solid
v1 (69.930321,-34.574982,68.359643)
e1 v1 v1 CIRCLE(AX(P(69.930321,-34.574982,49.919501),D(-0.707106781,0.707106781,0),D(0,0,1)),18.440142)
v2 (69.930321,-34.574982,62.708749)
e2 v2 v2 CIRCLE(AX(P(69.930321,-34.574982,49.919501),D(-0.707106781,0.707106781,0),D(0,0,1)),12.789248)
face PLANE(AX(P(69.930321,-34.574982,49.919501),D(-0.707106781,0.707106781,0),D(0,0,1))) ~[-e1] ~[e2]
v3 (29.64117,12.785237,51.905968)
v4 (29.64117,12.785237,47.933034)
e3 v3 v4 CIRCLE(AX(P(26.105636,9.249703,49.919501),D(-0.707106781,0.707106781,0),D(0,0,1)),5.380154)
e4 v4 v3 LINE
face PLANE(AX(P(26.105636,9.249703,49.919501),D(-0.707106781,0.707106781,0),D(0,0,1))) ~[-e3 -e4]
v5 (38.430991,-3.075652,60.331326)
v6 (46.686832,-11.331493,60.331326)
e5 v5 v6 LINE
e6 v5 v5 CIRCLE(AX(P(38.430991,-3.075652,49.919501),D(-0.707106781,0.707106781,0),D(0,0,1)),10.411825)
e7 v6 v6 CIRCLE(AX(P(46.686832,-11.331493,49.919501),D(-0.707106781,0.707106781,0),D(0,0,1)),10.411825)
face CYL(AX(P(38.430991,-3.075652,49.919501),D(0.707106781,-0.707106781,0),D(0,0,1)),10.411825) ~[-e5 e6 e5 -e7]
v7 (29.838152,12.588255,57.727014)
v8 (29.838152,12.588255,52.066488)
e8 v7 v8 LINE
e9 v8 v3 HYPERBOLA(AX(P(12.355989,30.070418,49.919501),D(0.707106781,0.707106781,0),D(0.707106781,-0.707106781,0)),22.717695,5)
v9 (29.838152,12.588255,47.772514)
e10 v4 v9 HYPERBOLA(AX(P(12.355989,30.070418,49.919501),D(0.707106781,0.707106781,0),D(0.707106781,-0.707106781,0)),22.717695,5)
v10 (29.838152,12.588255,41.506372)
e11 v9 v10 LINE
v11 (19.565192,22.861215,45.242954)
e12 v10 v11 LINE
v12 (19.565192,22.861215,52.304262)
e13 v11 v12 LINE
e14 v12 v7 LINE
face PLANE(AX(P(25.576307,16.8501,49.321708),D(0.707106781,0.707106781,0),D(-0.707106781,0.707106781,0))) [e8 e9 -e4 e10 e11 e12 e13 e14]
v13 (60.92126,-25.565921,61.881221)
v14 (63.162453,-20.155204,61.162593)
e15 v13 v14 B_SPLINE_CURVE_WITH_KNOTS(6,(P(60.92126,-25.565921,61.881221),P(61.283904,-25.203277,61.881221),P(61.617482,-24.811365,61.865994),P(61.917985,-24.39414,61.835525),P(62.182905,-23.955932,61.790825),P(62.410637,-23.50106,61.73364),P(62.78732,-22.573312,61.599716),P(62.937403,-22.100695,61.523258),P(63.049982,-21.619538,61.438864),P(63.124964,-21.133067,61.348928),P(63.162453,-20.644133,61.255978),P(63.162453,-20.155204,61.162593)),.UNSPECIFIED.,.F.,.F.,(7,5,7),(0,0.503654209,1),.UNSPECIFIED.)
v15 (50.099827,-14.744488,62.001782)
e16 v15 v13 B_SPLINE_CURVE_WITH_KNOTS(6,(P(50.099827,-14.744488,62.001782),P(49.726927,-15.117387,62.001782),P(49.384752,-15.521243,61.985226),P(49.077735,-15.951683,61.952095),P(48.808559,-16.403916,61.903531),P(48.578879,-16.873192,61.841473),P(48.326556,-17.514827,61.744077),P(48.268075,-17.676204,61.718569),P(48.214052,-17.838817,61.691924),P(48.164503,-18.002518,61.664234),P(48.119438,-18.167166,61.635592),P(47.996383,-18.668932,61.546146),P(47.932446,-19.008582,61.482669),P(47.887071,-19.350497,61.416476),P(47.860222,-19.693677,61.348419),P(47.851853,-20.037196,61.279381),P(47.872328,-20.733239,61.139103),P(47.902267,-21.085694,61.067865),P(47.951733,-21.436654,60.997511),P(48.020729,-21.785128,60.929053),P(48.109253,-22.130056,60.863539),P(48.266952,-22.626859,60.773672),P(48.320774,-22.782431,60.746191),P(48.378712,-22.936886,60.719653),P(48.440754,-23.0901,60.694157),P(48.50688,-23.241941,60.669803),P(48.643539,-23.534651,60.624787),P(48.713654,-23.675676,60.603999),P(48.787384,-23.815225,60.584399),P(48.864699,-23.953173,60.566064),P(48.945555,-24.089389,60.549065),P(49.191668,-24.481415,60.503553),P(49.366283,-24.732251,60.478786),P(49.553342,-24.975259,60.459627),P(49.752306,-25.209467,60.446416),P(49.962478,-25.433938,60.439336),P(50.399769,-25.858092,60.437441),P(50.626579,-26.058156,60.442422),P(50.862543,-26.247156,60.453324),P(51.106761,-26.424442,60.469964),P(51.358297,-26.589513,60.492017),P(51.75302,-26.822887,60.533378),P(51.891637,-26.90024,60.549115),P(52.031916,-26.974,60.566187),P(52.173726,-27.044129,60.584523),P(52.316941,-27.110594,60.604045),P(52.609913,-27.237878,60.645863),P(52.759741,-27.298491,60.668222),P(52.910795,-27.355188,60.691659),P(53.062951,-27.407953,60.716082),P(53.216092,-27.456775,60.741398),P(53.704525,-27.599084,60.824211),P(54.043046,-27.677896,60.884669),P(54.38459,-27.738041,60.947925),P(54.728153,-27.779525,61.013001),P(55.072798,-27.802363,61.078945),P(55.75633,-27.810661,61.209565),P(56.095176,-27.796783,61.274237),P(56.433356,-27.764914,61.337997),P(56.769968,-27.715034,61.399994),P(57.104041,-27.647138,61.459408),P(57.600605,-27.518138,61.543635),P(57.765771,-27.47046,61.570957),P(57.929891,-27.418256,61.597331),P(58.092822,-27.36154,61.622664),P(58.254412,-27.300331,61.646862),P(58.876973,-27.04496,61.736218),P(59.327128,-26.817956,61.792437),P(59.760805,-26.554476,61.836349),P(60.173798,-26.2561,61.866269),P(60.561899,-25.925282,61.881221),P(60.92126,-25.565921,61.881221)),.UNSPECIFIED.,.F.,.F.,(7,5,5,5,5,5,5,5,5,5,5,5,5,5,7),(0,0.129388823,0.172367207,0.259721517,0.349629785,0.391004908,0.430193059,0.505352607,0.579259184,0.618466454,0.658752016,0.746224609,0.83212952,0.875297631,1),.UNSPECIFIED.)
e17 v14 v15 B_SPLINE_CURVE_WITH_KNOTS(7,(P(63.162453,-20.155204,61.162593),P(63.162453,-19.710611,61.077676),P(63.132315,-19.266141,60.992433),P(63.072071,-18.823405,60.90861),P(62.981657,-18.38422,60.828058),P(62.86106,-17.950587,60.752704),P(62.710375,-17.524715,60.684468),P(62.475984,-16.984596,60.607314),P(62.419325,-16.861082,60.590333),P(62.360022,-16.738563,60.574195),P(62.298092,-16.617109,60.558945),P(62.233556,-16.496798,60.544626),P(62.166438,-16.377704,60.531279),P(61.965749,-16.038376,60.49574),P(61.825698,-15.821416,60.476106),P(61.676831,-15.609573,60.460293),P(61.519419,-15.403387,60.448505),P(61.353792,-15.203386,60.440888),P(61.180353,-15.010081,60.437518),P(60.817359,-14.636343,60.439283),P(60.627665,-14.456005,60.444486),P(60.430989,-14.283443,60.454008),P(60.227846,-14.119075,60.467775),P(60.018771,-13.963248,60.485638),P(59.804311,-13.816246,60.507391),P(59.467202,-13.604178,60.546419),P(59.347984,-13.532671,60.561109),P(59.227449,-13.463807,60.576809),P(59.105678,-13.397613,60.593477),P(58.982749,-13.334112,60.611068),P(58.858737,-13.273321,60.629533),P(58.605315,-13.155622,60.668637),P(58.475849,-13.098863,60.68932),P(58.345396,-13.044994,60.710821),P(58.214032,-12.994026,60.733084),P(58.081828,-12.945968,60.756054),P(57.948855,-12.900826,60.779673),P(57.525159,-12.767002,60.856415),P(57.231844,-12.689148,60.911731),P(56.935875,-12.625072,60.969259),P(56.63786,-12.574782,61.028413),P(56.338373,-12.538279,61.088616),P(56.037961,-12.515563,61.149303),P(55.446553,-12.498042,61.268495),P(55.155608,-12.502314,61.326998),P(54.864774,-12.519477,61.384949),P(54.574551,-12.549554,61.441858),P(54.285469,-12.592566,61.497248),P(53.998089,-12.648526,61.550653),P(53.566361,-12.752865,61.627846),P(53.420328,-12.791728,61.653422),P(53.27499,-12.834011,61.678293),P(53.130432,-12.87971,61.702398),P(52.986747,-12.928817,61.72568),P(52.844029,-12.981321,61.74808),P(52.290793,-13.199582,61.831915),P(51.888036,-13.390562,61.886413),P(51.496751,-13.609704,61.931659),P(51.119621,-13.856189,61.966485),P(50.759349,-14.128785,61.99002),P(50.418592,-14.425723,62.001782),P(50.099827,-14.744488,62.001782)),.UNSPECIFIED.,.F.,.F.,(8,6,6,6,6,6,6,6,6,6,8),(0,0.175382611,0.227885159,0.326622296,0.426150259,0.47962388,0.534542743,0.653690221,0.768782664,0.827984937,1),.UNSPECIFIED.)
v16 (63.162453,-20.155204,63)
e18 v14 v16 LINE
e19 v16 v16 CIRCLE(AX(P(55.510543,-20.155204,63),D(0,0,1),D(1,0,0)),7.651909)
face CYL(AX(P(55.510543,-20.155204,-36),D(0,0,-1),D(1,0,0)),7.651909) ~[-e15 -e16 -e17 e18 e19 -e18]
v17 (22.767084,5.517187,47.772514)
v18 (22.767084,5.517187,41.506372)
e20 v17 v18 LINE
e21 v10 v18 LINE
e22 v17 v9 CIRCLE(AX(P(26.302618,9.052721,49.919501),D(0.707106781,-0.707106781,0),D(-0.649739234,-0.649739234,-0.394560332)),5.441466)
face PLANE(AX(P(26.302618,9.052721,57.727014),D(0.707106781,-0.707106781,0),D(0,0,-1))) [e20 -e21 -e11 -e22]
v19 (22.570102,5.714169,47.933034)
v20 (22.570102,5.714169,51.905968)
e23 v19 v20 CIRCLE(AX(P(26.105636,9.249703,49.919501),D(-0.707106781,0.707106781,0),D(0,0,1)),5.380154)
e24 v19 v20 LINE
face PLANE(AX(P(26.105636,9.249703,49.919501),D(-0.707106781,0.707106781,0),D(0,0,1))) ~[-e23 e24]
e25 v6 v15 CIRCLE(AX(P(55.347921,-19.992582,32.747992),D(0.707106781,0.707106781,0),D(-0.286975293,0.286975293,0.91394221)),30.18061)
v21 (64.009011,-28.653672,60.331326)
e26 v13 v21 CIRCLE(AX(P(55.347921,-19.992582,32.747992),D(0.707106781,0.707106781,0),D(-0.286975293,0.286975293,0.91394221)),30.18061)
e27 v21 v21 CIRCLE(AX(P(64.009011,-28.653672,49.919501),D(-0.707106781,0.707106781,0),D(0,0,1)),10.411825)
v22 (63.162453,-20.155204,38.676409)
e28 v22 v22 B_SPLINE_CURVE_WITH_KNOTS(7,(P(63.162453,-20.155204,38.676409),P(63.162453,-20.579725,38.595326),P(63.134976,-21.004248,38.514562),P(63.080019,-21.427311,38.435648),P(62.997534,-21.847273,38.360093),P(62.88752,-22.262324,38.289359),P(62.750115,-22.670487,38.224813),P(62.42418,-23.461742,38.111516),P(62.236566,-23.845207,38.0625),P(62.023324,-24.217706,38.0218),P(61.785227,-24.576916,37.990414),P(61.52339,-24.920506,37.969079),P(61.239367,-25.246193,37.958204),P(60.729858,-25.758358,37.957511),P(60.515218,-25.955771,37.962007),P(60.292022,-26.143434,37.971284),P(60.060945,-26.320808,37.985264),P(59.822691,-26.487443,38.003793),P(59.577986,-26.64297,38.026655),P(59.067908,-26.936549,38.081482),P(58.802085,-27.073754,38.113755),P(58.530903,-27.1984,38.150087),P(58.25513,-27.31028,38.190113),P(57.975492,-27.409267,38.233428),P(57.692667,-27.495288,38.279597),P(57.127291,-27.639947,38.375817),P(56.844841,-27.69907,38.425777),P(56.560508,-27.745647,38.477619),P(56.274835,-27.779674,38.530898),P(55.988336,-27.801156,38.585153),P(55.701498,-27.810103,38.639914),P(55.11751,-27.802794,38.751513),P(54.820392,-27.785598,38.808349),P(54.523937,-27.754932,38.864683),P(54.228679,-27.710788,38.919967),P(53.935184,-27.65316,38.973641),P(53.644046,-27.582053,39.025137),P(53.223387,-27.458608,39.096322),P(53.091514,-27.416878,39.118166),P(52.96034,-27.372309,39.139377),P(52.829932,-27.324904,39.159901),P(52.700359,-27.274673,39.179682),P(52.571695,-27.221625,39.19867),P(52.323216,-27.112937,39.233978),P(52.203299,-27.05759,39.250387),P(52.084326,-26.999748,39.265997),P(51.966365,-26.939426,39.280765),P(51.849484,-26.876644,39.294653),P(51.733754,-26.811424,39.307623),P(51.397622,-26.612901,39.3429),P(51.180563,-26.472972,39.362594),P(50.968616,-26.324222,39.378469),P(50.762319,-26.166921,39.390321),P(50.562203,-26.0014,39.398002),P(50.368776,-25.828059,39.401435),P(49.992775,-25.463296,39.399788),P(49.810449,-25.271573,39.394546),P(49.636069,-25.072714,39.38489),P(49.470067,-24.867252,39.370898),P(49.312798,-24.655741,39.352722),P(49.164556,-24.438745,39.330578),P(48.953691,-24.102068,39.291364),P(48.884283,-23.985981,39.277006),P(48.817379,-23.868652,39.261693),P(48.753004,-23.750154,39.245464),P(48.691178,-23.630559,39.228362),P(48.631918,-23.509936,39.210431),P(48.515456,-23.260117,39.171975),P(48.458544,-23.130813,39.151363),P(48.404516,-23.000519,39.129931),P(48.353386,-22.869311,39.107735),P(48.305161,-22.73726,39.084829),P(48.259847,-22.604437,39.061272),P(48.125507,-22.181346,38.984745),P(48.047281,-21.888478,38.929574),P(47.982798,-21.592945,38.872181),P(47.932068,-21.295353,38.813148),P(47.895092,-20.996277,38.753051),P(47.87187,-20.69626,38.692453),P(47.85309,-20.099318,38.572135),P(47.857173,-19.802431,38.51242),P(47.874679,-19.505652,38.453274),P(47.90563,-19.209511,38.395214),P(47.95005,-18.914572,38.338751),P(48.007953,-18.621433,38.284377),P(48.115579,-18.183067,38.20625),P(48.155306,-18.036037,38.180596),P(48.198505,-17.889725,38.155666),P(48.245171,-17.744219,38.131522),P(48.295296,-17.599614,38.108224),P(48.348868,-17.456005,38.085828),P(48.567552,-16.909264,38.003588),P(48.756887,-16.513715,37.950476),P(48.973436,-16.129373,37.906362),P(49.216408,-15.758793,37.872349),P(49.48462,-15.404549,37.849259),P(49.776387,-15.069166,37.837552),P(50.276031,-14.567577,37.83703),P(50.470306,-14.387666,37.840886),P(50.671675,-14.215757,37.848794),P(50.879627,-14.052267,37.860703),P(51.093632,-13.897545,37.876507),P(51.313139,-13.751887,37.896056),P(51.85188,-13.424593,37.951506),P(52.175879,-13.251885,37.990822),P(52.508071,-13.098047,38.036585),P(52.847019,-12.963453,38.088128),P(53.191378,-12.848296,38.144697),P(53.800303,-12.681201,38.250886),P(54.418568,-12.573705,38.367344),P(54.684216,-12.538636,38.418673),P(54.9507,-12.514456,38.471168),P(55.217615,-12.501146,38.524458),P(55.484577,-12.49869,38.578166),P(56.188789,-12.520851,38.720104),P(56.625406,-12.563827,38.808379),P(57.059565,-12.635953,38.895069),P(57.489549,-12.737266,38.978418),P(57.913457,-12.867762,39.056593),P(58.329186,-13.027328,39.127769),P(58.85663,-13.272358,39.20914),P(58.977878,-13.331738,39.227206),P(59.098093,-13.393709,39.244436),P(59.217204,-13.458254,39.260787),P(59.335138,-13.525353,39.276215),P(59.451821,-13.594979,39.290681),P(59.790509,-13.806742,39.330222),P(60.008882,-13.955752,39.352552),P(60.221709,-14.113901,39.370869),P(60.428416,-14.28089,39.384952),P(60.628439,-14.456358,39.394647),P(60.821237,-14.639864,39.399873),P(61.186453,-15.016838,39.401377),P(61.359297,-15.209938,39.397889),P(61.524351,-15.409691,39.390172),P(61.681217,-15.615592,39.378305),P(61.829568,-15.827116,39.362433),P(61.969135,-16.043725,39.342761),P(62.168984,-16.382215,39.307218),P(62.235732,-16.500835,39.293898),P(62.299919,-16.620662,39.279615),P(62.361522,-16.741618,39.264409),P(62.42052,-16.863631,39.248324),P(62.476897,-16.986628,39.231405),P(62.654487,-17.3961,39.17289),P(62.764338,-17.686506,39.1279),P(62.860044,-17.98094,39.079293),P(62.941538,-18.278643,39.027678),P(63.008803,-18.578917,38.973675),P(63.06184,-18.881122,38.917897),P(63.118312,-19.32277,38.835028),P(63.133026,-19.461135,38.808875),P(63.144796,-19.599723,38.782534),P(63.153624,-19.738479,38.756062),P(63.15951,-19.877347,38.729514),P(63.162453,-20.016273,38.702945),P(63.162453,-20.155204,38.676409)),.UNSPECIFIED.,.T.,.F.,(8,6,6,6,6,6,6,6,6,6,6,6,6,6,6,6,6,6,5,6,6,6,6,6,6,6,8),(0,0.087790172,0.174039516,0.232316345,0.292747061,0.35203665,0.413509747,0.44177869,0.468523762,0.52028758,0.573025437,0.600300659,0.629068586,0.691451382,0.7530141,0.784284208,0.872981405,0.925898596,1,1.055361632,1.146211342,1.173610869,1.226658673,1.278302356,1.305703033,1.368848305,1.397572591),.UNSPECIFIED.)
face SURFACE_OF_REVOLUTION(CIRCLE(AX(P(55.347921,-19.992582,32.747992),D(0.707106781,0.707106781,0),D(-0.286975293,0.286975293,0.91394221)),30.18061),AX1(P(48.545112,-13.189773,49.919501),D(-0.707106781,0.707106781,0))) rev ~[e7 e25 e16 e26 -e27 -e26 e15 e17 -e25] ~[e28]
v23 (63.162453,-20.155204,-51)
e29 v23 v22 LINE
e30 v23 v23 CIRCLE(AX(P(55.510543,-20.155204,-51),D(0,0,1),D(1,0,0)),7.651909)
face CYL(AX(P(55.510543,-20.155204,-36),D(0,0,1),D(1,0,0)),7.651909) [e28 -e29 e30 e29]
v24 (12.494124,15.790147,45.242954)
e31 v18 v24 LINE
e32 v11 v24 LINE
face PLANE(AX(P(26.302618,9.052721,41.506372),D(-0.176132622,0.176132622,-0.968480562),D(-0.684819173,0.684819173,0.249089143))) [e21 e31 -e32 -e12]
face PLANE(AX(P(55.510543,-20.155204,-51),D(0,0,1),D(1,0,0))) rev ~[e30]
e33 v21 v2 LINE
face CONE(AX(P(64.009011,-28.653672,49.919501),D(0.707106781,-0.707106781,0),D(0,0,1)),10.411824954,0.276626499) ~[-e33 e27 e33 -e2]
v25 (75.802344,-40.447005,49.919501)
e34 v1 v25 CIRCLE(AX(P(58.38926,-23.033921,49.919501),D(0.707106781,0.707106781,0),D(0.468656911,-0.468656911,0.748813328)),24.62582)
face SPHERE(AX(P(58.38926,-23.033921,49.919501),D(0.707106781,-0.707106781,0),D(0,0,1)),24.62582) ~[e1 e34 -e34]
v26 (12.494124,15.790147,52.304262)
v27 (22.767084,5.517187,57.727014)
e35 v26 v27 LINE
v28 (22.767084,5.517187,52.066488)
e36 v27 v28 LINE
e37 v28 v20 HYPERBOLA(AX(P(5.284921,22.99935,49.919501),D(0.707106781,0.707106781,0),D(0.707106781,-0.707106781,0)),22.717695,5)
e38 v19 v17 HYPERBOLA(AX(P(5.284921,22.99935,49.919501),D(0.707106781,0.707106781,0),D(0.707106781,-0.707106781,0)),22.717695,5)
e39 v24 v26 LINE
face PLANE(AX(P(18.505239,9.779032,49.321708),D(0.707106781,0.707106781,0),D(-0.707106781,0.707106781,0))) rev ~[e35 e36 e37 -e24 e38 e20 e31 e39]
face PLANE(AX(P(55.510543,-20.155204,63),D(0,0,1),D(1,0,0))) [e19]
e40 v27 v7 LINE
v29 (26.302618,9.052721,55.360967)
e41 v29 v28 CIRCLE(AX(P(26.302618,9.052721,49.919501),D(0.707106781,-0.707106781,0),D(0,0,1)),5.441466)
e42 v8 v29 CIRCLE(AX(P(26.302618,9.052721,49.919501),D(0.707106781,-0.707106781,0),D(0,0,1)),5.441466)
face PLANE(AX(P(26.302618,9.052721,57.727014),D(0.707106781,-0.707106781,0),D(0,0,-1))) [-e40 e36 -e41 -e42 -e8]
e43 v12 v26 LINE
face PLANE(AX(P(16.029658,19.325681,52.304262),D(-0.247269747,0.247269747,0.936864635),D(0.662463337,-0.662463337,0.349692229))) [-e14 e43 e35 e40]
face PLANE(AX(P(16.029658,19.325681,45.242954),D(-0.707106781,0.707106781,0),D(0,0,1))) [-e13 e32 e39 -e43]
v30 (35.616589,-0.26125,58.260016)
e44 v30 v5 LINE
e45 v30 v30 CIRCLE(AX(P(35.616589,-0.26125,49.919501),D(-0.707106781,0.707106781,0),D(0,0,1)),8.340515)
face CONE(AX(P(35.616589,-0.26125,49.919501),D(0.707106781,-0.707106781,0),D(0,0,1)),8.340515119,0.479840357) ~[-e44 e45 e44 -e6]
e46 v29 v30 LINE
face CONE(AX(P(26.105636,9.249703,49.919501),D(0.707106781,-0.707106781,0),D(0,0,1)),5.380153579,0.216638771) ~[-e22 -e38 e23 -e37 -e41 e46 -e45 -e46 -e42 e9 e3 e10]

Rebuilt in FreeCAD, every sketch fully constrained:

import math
import FreeCAD as App
import Part
import Sketcher
Q = App.Units.Quantity

doc = App.newDocument("Part")
body = doc.addObject("PartDesign::Body", "Body")

# Sketch on an angled plane
sketch1 = body.newObject("Sketcher::SketchObject", "Sketch")
sketch1.Placement = App.Placement(App.Vector(17.67767, 17.67767, 0), App.Rotation(App.Vector(-0.707106781, 0.707106781, 0), App.Vector(0, 0, 0.999999999), App.Vector(0.707106781, 0.707106781, 0), "ZXY"))
sketch1.addGeometry([
    Part.LineSegment(App.Vector(-82.200703, 49.919501, 0), App.Vector(-11.918945, 49.919501, 0)),  # 0
    Part.LineSegment(App.Vector(-11.918945, 49.919501, 0), App.Vector(-11.918945, 55.299654, 0)),  # 1
    Part.LineSegment(App.Vector(-11.918945, 55.299654, 0), App.Vector(-25.369463, 58.260016, 0)),  # 2
    Part.LineSegment(App.Vector(-25.369463, 58.260016, 0), App.Vector(-29.349628, 60.331326, 0)),  # 3
    Part.LineSegment(App.Vector(-29.349628, 60.331326, 0), App.Vector(-41.025151, 60.331326, 0)),  # 4
    Part.ArcOfCircle(Part.Circle(App.Vector(-53.273781, 32.747992, 0), App.Vector(0, 0, 1), 30.18061), math.radians(66.055951), math.radians(113.944049)),  # 5
    Part.LineSegment(App.Vector(-65.522411, 60.331326, 0), App.Vector(-73.896408, 62.708749, 0)),  # 6
    Part.LineSegment(App.Vector(-73.896408, 62.708749, 0), App.Vector(-73.896408, 68.359643, 0)),  # 7
    Part.ArcOfCircle(Part.Circle(App.Vector(-57.574883, 49.919501, 0), App.Vector(0, 0, 1), 24.62582), math.radians(131.512311), math.radians(180)),  # 8
], False)
sketch1.addGeometry(Part.LineSegment(App.Vector(-82.200703, 49.919501, 0), App.Vector(-11.918945, 49.919501, 0)), True)  # axis
sketch1.addConstraint([
    Sketcher.Constraint("Coincident", 0, 2, 1, 1),
    Sketcher.Constraint("Coincident", 1, 2, 2, 1),
    Sketcher.Constraint("Coincident", 2, 2, 3, 1),
    Sketcher.Constraint("Coincident", 3, 2, 4, 1),
    Sketcher.Constraint("Coincident", 4, 2, 5, 1),
    Sketcher.Constraint("Coincident", 5, 2, 6, 1),
    Sketcher.Constraint("Coincident", 6, 2, 7, 1),
    Sketcher.Constraint("Coincident", 7, 2, 8, 1),
    Sketcher.Constraint("Coincident", 8, 2, 0, 1),
    Sketcher.Constraint("Horizontal", 0),
    Sketcher.Constraint("Vertical", 1),
    Sketcher.Constraint("Horizontal", 4),
    Sketcher.Constraint("Vertical", 7),
    Sketcher.Constraint("Horizontal", 9),
    Sketcher.Constraint("Coincident", 9, 1, 8, 2),
    Sketcher.Constraint("Horizontal", 8, 3, 0, 2),
    Sketcher.Constraint("Horizontal", 4, 2, 5, 2),
    Sketcher.Constraint("Vertical", 1, 2, 9, 2),
    Sketcher.Constraint("Radius", 5, Q("30.18061 mm")),
    Sketcher.Constraint("Radius", 8, Q("24.62582 mm")),
    Sketcher.Constraint("DistanceX", 0, 1, 0, 2, Q("70.281759 mm")),
    Sketcher.Constraint("DistanceY", -1, 1, 8, 3, Q("49.919501 mm")),
    Sketcher.Constraint("Distance", 6, Q("8.704939 mm")),
    Sketcher.Constraint("DistanceX", 4, 2, 4, 1, Q("11.675523 mm")),
    Sketcher.Constraint("DistanceY", 1, 1, 1, 2, Q("5.380154 mm")),
    Sketcher.Constraint("DistanceY", 7, 1, 7, 2, Q("5.650894 mm")),
    Sketcher.Constraint("DistanceX", 5, 3, -1, 1, Q("53.273781 mm")),
    Sketcher.Constraint("DistanceX", 3, 2, -1, 1, Q("29.349628 mm")),
    Sketcher.Constraint("DistanceX", 6, 2, -1, 1, Q("73.896408 mm")),
    Sketcher.Constraint("DistanceY", -1, 1, 6, 2, Q("62.708749 mm")),
    Sketcher.Constraint("DistanceX", 2, 2, 1, 2, Q("13.450518 mm")),
    Sketcher.Constraint("DistanceY", 1, 2, 2, 2, Q("2.960362 mm")),
])
revolution = body.newObject("PartDesign::Revolution", "Revolution")
revolution.Profile = sketch1
revolution.ReferenceAxis = (sketch1, ["Axis0"])
revolution.Angle = 360

# Sketch on an angled plane
sketch2 = body.newObject("Sketcher::SketchObject", "Sketch001")
sketch2.Placement = App.Placement(App.Vector(17.67767, 17.67767, 0), App.Rotation(App.Vector(-0.707106781, 0.707106781, 0), App.Vector(0, 0, 0.999999999), App.Vector(0.707106781, 0.707106781, 0), "ZXY"))
sketch2.addGeometry([
    Part.LineSegment(App.Vector(2.33064, 52.304262, 0), App.Vector(-12.19752, 57.727014, 0)),
    Part.LineSegment(App.Vector(-12.19752, 57.727014, 0), App.Vector(-12.19752, 41.506372, 0)),
    Part.LineSegment(App.Vector(-12.19752, 41.506372, 0), App.Vector(2.33064, 45.242954, 0)),
    Part.LineSegment(App.Vector(2.33064, 45.242954, 0), App.Vector(2.33064, 52.304262, 0)),
], False)
sketch2.addConstraint([
    Sketcher.Constraint("Coincident", 0, 2, 1, 1),
    Sketcher.Constraint("Coincident", 1, 2, 2, 1),
    Sketcher.Constraint("Coincident", 2, 2, 3, 1),
    Sketcher.Constraint("Coincident", 3, 2, 0, 1),
    Sketcher.Constraint("Vertical", 1),
    Sketcher.Constraint("Vertical", 3),
    Sketcher.Constraint("DistanceY", 3, 1, 3, 2, Q("7.061309 mm")),
    Sketcher.Constraint("DistanceY", 1, 2, 1, 1, Q("16.220642 mm")),
    Sketcher.Constraint("DistanceX", 0, 2, -1, 1, Q("12.19752 mm")),
    Sketcher.Constraint("DistanceY", -1, 1, 1, 2, Q("41.506372 mm")),
    Sketcher.Constraint("DistanceX", -1, 1, 2, 2, Q("2.33064 mm")),
    Sketcher.Constraint("DistanceY", 1, 2, 2, 2, Q("3.736582 mm")),
])
pad1 = body.newObject("PartDesign::Pad", "Pad")
pad1.Profile = sketch2
pad1.Length = 5

# Sketch on an angled plane
sketch3 = body.newObject("Sketcher::SketchObject", "Sketch002")
sketch3.Placement = App.Placement(App.Vector(17.67767, 17.67767, 0), App.Rotation(App.Vector(-0.707106781, 0.707106781, 0), App.Vector(0, 0, 0.999999999), App.Vector(0.707106781, 0.707106781, 0), "ZXY"))
sketch3.addGeometry([
    Part.LineSegment(App.Vector(2.33064, 52.304262, 0), App.Vector(-12.19752, 57.727014, 0)),
    Part.LineSegment(App.Vector(-12.19752, 57.727014, 0), App.Vector(-12.19752, 41.506372, 0)),
    Part.LineSegment(App.Vector(-12.19752, 41.506372, 0), App.Vector(2.33064, 45.242954, 0)),
    Part.LineSegment(App.Vector(2.33064, 45.242954, 0), App.Vector(2.33064, 52.304262, 0)),
], False)
sketch3.addConstraint([
    Sketcher.Constraint("Coincident", 0, 2, 1, 1),
    Sketcher.Constraint("Coincident", 1, 2, 2, 1),
    Sketcher.Constraint("Coincident", 2, 2, 3, 1),
    Sketcher.Constraint("Coincident", 3, 2, 0, 1),
    Sketcher.Constraint("Vertical", 1),
    Sketcher.Constraint("Vertical", 3),
    Sketcher.Constraint("DistanceY", 3, 1, 3, 2, Q("7.061309 mm")),
    Sketcher.Constraint("DistanceY", 1, 2, 1, 1, Q("16.220642 mm")),
    Sketcher.Constraint("DistanceX", 0, 2, -1, 1, Q("12.19752 mm")),
    Sketcher.Constraint("DistanceY", -1, 1, 1, 2, Q("41.506372 mm")),
    Sketcher.Constraint("DistanceX", -1, 1, 2, 2, Q("2.33064 mm")),
    Sketcher.Constraint("DistanceY", 1, 2, 2, 2, Q("3.736582 mm")),
])
pad2 = body.newObject("PartDesign::Pad", "Pad001")
pad2.Profile = sketch3
pad2.Length = 5
pad2.Reversed = True

# Sketch on XY plane
sketch4 = body.newObject("Sketcher::SketchObject", "Sketch003")
sketch4.AttachmentSupport = (doc.getObject("XY_Plane"), [""])
sketch4.MapMode = "FlatFace"
sketch4.AttachmentOffset = App.Placement(App.Vector(0, 0, -36), App.Rotation())
sketch4.addGeometry(Part.Circle(App.Vector(55.510543, -20.155204, 0), App.Vector(0, 0, 1), 7.651909), False)
sketch4.addConstraint([
    Sketcher.Constraint("Diameter", 0, Q("15.303818 mm")),
    Sketcher.Constraint("DistanceX", -1, 1, 0, 3, Q("55.510543 mm")),
    Sketcher.Constraint("DistanceY", 0, 3, -1, 1, Q("20.155204 mm")),
])
pad3 = body.newObject("PartDesign::Pad", "Pad002")
pad3.Profile = sketch4
pad3.Length = 99

# Sketch on XY plane
sketch5 = body.newObject("Sketcher::SketchObject", "Sketch004")
sketch5.AttachmentSupport = (doc.getObject("XY_Plane"), [""])
sketch5.MapMode = "FlatFace"
sketch5.AttachmentOffset = App.Placement(App.Vector(0, 0, -36), App.Rotation())
sketch5.addGeometry(Part.Circle(App.Vector(55.510543, -20.155204, 0), App.Vector(0, 0, 1), 7.651909), False)
sketch5.addConstraint([
    Sketcher.Constraint("Diameter", 0, Q("15.303818 mm")),
    Sketcher.Constraint("DistanceX", -1, 1, 0, 3, Q("55.510543 mm")),
    Sketcher.Constraint("DistanceY", 0, 3, -1, 1, Q("20.155204 mm")),
])
pad4 = body.newObject("PartDesign::Pad", "Pad003")
pad4.Profile = sketch5
pad4.Length = 15
pad4.Reversed = True

doc.recompute()
